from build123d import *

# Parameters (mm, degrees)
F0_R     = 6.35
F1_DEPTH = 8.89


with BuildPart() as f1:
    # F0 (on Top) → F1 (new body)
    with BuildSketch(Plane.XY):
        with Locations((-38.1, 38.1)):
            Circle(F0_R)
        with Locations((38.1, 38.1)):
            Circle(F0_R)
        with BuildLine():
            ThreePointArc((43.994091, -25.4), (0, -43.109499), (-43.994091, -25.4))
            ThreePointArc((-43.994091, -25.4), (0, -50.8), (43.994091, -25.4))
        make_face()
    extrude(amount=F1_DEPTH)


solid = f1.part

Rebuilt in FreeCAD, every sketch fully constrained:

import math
import FreeCAD as App
import Part
import Sketcher

V = App.Vector
Q = App.Units.Quantity

doc = App.newDocument("Part")
body = doc.addObject("PartDesign::Body", "Body")
body.AllowCompound = True

sketch1 = doc.addObject("Sketcher::SketchObject", "Sketch")
body.addObject(sketch1)
sketch1.AttachmentSupport = (doc.XY_Plane, [""])
sketch1.MapMode = "FlatFace"
sketch1.addGeometry([
    Part.Circle(V(-38.1, 38.1, 0), V(0, 0, 1), 6.35),
    Part.Circle(V(38.1, 38.1, 0), V(0, 0, 1), 6.35),
    Part.ArcOfCircle(Part.Circle(V(0, 20.390502, 0), V(0, 0, 1), 63.500001), math.radians(-133.853779), math.radians(-46.146221)),
    Part.ArcOfCircle(Part.Circle(V(0, 0.000001, 0), V(0, 0, 1), 50.800001), math.radians(-149.999999), math.radians(-30.000001)),
], False)
sketch1.addConstraint([
    Sketcher.Constraint("Coincident", 2, 1, 3, 1),
    Sketcher.Constraint("Coincident", 3, 2, 2, 2),
    Sketcher.Constraint("Coincident", 3, 3, -1, 1),
    Sketcher.Constraint("Equal", 0, 1),
    Sketcher.Constraint("Symmetric", 0, 3, 1, 3, -2),
    Sketcher.Constraint("PointOnObject", 2, 3, -2),
    Sketcher.Constraint("Radius", 3, Q("2 in")),
    Sketcher.Constraint("Diameter", 0, Q("0.5 in")),
    Sketcher.Constraint("Radius", 2, Q("2.5 in")),
    Sketcher.Constraint("DistanceY", 2, 1, -1, 1, Q("1 in")),
    Sketcher.Constraint("DistanceX", 0, 3, 1, 3, Q("3 in")),
    Sketcher.Constraint("DistanceY", -1, 1, 0, 3, Q("1.5 in")),
])
pad1 = doc.addObject("PartDesign::Pad", "Pad")
body.addObject(pad1)
pad1.Profile = sketch1
pad1.Length = Q("0.35 in")

doc.recompute()
